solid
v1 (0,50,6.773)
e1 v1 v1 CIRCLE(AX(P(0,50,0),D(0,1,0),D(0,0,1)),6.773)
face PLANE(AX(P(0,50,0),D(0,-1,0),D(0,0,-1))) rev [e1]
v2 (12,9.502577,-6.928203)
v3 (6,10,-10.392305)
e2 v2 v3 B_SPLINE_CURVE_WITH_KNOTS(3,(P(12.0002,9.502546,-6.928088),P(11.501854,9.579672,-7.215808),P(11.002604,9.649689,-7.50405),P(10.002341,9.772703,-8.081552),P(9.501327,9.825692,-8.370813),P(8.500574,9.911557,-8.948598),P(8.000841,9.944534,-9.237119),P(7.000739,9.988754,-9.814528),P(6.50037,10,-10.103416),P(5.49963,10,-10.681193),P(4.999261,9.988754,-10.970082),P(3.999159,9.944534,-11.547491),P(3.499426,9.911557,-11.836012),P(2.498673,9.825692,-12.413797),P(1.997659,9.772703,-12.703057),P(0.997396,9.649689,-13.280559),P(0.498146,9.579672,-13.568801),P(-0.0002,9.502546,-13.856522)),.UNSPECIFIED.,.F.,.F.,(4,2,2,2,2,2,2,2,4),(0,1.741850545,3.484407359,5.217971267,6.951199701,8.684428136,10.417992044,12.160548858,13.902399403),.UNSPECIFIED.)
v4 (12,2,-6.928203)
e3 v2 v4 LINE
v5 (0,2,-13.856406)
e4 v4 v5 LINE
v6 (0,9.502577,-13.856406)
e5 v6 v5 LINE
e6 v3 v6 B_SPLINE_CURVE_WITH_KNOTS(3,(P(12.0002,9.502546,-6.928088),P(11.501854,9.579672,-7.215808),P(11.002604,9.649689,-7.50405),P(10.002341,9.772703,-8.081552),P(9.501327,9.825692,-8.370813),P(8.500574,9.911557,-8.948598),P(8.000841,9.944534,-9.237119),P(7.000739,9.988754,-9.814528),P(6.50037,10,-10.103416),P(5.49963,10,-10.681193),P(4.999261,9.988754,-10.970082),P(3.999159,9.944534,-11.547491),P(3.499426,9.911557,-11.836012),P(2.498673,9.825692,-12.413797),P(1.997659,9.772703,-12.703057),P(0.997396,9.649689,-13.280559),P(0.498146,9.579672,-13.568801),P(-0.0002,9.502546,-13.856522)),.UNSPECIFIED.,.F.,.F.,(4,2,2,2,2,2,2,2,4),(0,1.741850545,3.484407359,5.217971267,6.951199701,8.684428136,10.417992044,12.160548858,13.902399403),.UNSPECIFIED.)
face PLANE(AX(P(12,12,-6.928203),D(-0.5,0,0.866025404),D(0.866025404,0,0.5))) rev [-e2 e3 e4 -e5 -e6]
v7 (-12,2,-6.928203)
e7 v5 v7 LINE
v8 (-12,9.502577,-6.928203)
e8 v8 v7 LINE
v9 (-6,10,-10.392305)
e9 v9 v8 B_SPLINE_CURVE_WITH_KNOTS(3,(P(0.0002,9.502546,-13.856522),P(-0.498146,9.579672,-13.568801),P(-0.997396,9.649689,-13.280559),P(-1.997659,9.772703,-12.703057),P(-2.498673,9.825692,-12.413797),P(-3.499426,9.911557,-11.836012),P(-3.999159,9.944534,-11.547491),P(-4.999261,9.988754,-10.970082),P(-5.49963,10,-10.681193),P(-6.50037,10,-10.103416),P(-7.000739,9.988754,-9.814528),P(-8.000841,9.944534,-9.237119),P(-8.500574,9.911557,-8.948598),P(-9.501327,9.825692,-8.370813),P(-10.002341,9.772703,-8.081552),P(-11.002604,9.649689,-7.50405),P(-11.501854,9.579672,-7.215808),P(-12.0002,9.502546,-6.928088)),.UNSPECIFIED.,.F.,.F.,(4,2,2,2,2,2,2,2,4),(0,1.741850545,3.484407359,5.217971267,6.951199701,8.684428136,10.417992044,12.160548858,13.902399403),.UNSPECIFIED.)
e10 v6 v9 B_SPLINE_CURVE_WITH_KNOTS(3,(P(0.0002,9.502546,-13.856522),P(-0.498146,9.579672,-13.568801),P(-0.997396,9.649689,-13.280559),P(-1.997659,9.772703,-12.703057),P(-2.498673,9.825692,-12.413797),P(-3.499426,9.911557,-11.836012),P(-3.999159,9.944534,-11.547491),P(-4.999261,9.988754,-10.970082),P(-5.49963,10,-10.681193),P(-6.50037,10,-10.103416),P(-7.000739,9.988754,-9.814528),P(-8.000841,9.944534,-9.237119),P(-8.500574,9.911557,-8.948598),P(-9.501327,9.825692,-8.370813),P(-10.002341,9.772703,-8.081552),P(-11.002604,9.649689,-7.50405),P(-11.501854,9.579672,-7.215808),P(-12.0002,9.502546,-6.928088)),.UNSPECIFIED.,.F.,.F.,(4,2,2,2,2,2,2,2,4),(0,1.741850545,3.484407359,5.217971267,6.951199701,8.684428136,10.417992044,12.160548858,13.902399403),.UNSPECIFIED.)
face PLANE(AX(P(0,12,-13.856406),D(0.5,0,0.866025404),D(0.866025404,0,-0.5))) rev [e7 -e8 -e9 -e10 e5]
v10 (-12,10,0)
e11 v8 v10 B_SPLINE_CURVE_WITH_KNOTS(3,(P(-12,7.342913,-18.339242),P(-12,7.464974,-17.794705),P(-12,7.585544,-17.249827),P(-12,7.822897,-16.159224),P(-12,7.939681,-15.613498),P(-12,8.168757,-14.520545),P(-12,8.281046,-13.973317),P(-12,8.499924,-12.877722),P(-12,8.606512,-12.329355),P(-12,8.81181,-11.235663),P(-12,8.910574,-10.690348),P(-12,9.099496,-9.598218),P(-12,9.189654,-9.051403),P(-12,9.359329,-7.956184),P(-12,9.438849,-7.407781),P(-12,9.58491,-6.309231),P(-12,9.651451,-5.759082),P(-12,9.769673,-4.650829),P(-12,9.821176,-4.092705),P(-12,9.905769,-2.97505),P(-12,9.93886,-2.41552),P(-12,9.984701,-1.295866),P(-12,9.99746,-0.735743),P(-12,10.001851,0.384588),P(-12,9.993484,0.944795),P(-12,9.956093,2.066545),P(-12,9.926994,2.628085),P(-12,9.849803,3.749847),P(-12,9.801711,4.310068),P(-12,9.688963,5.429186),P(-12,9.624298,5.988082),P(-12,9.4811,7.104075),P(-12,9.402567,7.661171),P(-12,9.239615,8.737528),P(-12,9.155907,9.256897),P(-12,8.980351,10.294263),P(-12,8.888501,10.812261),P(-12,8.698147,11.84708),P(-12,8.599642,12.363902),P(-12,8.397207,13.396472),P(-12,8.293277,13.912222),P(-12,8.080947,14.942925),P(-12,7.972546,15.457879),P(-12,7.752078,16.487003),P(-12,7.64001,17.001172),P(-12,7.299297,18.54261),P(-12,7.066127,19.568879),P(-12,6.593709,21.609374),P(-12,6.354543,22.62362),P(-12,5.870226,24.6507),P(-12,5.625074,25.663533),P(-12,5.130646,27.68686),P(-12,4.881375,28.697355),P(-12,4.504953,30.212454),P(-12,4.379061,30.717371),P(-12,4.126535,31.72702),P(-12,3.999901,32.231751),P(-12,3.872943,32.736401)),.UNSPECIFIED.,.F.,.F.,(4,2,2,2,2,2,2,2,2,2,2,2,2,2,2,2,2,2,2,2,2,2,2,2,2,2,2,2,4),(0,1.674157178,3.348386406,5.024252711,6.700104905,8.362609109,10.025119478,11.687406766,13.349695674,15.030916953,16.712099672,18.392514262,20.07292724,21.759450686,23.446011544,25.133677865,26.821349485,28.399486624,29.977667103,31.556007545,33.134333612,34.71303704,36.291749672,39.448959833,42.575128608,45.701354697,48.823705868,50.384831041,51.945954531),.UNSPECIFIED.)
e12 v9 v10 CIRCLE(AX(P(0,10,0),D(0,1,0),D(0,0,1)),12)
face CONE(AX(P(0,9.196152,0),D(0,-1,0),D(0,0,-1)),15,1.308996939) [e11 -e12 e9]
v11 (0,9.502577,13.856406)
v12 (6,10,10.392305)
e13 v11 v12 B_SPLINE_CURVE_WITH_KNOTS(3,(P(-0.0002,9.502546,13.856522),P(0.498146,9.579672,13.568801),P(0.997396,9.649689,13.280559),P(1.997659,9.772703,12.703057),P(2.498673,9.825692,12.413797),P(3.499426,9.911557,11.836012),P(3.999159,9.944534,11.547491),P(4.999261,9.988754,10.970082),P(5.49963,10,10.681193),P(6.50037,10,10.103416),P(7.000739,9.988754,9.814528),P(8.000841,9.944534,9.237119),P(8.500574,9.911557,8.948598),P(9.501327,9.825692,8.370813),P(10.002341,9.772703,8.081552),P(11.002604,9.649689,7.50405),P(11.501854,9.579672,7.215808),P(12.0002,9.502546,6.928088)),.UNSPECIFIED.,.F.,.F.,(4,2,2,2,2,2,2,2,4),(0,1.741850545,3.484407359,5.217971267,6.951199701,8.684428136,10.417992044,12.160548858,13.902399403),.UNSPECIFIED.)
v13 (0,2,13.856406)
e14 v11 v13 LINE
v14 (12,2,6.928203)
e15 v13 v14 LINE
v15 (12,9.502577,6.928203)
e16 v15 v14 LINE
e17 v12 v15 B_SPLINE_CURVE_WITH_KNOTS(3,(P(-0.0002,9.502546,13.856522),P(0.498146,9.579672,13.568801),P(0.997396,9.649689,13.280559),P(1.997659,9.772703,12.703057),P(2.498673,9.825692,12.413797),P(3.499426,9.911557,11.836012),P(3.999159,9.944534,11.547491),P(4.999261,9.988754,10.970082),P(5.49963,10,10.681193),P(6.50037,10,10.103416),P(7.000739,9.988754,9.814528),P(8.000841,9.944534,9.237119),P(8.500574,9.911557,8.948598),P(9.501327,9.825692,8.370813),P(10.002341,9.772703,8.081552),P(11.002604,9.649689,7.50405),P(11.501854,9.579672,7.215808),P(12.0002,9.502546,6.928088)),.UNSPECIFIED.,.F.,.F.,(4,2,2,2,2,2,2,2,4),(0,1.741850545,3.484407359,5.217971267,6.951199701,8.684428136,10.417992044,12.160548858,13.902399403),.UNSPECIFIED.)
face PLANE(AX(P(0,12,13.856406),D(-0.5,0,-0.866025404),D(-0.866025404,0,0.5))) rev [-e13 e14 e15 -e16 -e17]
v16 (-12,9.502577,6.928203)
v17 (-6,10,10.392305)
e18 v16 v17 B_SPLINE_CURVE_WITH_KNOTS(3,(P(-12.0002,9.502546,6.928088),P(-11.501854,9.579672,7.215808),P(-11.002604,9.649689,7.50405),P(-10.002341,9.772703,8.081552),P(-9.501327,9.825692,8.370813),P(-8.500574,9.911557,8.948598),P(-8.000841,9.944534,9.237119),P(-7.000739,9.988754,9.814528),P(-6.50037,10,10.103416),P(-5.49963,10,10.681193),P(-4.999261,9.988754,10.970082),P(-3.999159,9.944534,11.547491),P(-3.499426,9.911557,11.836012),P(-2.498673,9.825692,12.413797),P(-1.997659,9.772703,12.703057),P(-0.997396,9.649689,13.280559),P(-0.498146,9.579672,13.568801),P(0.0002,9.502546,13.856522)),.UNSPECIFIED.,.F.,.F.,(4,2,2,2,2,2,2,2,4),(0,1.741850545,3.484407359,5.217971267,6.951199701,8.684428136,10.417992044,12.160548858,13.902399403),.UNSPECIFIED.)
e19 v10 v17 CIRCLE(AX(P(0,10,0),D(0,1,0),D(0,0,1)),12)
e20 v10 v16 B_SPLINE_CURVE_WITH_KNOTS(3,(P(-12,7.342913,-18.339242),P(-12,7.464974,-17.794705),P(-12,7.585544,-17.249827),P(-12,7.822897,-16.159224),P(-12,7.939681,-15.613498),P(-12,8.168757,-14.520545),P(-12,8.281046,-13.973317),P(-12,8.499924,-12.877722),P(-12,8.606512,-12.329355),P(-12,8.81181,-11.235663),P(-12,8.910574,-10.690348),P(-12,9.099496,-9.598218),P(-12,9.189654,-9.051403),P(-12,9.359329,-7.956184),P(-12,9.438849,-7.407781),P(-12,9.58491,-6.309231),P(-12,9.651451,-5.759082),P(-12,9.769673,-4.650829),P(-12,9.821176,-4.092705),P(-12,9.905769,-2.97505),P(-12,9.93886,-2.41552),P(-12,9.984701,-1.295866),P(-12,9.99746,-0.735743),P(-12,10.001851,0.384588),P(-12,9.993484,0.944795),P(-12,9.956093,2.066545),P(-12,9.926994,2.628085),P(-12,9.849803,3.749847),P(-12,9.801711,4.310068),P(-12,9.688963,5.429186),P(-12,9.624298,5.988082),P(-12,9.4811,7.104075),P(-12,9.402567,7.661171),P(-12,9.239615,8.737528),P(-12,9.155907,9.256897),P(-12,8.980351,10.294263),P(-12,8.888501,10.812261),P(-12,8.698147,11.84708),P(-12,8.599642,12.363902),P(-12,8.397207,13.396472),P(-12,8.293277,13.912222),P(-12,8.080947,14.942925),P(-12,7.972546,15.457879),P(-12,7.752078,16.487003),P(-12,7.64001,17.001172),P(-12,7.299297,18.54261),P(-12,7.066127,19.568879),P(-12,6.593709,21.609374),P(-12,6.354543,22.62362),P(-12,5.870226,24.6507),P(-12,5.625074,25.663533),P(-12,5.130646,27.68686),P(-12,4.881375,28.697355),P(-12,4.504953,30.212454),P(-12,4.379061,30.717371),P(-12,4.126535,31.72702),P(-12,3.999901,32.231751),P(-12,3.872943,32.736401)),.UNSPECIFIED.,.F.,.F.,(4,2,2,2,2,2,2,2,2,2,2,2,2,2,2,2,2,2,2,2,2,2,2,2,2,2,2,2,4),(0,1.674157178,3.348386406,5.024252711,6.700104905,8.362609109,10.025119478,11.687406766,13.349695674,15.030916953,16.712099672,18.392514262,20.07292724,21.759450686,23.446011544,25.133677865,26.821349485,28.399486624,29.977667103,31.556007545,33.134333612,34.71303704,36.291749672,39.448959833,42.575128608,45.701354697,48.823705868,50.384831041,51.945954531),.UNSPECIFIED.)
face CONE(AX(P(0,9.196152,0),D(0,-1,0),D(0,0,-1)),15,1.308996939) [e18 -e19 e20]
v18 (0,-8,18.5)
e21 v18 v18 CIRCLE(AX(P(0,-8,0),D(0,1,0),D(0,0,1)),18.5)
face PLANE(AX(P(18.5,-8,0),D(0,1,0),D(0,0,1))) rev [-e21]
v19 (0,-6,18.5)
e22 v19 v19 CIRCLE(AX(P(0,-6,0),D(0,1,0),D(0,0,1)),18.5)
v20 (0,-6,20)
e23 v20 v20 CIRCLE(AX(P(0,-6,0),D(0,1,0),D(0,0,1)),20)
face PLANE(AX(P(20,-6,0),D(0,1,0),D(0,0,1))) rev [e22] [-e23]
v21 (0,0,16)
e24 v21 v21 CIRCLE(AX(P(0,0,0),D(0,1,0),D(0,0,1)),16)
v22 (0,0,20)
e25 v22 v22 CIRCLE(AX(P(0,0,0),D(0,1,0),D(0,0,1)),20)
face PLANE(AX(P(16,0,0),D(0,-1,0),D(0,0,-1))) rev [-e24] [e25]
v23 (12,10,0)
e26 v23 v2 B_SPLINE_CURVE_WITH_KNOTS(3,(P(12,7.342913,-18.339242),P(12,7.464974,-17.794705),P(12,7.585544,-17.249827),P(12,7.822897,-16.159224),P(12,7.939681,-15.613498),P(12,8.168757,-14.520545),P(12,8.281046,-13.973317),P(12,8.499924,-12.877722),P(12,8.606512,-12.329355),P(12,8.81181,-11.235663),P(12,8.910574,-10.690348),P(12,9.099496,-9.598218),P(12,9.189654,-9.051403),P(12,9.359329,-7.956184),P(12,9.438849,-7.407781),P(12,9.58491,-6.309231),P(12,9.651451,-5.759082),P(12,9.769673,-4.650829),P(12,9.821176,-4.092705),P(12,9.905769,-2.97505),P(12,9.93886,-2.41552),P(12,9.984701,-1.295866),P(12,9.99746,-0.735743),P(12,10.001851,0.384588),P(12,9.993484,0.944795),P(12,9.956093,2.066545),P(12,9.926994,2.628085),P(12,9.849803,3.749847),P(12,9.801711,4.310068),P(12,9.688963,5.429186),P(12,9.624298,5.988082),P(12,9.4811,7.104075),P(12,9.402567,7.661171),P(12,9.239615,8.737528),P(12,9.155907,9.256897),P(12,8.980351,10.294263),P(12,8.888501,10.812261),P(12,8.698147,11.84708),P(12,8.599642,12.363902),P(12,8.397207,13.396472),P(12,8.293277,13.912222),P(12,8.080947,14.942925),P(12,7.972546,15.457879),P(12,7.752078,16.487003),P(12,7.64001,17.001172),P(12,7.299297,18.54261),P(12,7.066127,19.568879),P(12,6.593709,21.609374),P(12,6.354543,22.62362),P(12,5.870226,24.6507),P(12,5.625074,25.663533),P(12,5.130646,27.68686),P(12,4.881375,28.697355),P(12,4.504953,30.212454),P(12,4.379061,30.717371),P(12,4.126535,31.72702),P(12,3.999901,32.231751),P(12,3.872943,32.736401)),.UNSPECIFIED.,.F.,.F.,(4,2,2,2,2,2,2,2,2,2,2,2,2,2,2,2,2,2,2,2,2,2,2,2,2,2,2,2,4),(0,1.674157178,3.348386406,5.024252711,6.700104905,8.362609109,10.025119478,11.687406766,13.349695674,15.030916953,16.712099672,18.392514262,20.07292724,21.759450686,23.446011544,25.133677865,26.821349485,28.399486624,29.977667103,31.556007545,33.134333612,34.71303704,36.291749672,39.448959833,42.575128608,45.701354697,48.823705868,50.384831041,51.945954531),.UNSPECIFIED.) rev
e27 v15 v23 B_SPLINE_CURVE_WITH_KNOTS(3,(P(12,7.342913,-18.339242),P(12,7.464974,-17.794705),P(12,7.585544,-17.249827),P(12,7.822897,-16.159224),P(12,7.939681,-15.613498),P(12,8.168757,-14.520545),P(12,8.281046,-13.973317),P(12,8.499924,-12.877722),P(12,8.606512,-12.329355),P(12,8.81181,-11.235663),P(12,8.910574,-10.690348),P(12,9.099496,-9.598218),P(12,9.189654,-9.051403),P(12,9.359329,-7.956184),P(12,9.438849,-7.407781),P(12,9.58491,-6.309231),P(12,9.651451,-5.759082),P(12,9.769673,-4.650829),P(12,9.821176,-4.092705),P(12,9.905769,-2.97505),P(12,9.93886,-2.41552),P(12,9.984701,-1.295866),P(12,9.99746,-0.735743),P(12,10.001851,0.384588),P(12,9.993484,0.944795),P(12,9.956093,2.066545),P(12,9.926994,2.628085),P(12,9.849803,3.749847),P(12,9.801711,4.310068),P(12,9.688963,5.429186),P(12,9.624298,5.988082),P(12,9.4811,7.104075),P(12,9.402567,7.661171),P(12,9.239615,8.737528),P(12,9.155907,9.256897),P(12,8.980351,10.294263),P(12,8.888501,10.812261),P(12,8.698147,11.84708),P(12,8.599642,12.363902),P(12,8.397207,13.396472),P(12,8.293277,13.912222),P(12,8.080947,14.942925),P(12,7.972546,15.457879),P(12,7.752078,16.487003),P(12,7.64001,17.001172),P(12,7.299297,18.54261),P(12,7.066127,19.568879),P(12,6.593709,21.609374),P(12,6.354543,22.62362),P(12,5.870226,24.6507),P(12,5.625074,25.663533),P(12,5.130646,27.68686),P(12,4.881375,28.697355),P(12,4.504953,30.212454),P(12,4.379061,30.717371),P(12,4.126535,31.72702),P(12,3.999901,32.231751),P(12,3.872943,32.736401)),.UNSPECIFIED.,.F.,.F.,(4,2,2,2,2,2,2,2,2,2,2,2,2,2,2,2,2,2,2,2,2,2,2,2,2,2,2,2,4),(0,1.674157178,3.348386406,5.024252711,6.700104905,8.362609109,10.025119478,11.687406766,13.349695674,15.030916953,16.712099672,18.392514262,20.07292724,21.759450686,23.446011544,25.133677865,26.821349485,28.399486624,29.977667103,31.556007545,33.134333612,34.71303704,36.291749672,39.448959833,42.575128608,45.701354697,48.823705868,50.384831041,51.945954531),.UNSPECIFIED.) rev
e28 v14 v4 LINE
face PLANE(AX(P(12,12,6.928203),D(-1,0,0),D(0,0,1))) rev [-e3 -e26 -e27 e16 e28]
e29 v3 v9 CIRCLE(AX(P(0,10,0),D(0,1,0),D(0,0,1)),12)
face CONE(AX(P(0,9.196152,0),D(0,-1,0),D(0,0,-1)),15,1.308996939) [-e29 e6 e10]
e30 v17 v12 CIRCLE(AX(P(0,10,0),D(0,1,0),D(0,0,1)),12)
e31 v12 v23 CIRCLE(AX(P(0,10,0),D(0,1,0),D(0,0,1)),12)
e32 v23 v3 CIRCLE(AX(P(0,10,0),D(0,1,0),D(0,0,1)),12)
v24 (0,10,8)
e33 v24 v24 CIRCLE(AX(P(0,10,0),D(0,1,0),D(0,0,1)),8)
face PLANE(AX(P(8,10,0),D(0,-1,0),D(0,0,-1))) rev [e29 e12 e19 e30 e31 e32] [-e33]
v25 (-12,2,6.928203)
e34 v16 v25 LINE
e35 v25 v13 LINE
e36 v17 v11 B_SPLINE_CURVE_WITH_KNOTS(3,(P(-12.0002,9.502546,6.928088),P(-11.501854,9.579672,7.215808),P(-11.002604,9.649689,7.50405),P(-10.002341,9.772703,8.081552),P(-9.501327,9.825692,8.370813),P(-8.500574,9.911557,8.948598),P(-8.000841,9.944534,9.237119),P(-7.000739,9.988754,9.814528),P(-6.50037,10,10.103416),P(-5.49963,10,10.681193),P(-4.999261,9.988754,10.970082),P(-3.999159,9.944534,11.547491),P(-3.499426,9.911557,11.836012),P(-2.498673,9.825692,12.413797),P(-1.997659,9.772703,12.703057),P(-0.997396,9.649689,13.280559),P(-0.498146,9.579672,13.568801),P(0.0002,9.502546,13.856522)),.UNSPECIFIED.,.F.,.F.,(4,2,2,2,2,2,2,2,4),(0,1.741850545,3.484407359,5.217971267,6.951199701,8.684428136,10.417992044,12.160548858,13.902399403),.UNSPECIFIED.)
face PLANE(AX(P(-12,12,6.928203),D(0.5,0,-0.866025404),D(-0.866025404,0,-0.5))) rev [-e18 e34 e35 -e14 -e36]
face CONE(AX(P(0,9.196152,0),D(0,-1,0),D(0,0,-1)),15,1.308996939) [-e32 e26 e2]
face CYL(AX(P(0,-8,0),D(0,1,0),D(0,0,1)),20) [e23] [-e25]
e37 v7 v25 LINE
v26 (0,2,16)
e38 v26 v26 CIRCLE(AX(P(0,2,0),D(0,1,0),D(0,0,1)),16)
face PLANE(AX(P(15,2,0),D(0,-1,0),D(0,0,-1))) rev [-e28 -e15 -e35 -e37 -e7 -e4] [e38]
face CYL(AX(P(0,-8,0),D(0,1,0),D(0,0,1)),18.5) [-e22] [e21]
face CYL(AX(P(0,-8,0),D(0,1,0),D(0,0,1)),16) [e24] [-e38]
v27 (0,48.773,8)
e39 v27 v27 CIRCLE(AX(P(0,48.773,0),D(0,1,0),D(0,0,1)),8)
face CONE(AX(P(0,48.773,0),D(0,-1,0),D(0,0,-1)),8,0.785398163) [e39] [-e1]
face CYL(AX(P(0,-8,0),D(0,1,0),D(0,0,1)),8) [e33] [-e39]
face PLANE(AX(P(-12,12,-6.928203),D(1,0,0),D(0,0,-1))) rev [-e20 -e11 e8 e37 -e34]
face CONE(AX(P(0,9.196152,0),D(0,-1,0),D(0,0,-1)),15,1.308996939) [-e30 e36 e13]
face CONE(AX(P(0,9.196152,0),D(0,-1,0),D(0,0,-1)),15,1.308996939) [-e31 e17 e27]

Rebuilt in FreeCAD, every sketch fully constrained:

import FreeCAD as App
import Part
import Sketcher

V = App.Vector
Q = App.Units.Quantity


def add_polygon(sketch, points):
    """Adds a closed chain of lines whose ends are joined by coincident constraints."""
    first, n = sketch.GeometryCount, len(points)
    for a, b in zip(points, points[1:] + points[:1]):
        sketch.addGeometry(Part.LineSegment(App.Vector(*a, 0), App.Vector(*b, 0)), False)
    for i in range(n):
        sketch.addConstraint(Sketcher.Constraint("Coincident", first + i, 2, first + (i + 1) % n, 1))

doc = App.newDocument("Part")
params = doc.addObject("Spreadsheet::Sheet", "Params")
for row, (alias, value) in enumerate([
    ("sketch1_width", "4 mm"),
    ("sketch1_width2", "1 mm"),
    ("sketch1_height", "58 mm"),
    ("sketch1_height2", "2 mm"),
    ("sketch1_height3", "6 mm"),
    ("revolution_angle", "360 deg"),
    ("sketch2_diameter", "34 mm"),
    ("pocket1_length", "10 mm"),
], start=1):
    params.set(f"A{row}", alias)
    params.set(f"B{row}", "=" + value)
    params.setAlias(f"B{row}", alias)

body = doc.addObject("PartDesign::Body", "Body")

sketch1 = body.newObject("Sketcher::SketchObject", "Sketch")
sketch1.AttachmentSupport = (doc.getObject("XY_Plane"), [""])
sketch1.MapMode = "FlatFace"
add_polygon(sketch1, [(6.8, 50), (0, 50), (0, -8), (18.5, -8), (18.5, -6), (20, -6), (20, 0), (16, 0), (16, 2), (15, 2), (15, 9.2), (12, 10), (8, 10), (8, 48.8)])
sketch1.addConstraint(Sketcher.Constraint("Horizontal", 0))
sketch1.addConstraint(Sketcher.Constraint("Vertical", 1))
sketch1.addConstraint(Sketcher.Constraint("Horizontal", 2))
sketch1.addConstraint(Sketcher.Constraint("Vertical", 3))
sketch1.addConstraint(Sketcher.Constraint("Horizontal", 4))
sketch1.addConstraint(Sketcher.Constraint("Vertical", 5))
sketch1.addConstraint(Sketcher.Constraint("Horizontal", 6))
sketch1.addConstraint(Sketcher.Constraint("Vertical", 7))
sketch1.addConstraint(Sketcher.Constraint("Horizontal", 8))
sketch1.addConstraint(Sketcher.Constraint("Vertical", 9))
sketch1.addConstraint(Sketcher.Constraint("Horizontal", 11))
sketch1.addConstraint(Sketcher.Constraint("Vertical", 12))
sketch1.addConstraint(Sketcher.Constraint("PointOnObject", 0, 2, -2))
sketch1.addConstraint(Sketcher.Constraint("PointOnObject", 5, 2, -1))
sketch1.addConstraint(Sketcher.Constraint("Equal", 6, 11))
sketch1.addConstraint(Sketcher.Constraint("Equal", 3, 7))
sketch1.addConstraint(Sketcher.Constraint("DistanceX", 6, 2, 6, 1, Q("4 mm")))
sketch1.addConstraint(Sketcher.Constraint("DistanceX", 8, 2, 8, 1, Q("1 mm")))
sketch1.addConstraint(Sketcher.Constraint("DistanceY", 1, 2, 1, 1, Q("58 mm")))
sketch1.addConstraint(Sketcher.Constraint("DistanceY", 3, 1, 3, 2, Q("2 mm")))
sketch1.addConstraint(Sketcher.Constraint("DistanceY", 5, 1, 5, 2, Q("6 mm")))
sketch1.addConstraint(Sketcher.Constraint("Angle", 10, Q("165 deg")))
sketch1.addConstraint(Sketcher.Constraint("Angle", 13, Q("135 deg")))
sketch1.addConstraint(Sketcher.Constraint("DistanceX", 2, 1, 2, 2, Q("18.5 mm")))
sketch1.addConstraint(Sketcher.Constraint("DistanceX", 4, 1, 4, 2, Q("1.5 mm")))
sketch1.addConstraint(Sketcher.Constraint("DistanceX", -1, 1, 10, 2, Q("12 mm")))
sketch1.addConstraint(Sketcher.Constraint("DistanceY", -1, 1, 10, 2, Q("10 mm")))
sketch1.addConstraint(Sketcher.Constraint("DistanceX", 0, 2, 0, 1, Q("6.773 mm")))
sketch1.setExpression("Constraints[30]", "Params.sketch1_width")
sketch1.setExpression("Constraints[31]", "Params.sketch1_width2")
sketch1.setExpression("Constraints[32]", "Params.sketch1_height")
sketch1.setExpression("Constraints[33]", "Params.sketch1_height2")
sketch1.setExpression("Constraints[34]", "Params.sketch1_height3")
revolution = body.newObject("PartDesign::Revolution", "Revolution")
revolution.Profile = sketch1
revolution.ReferenceAxis = (sketch1, ["V_Axis"])
revolution.setExpression("Angle", "Params.revolution_angle")

sketch2 = body.newObject("Sketcher::SketchObject", "Sketch001")
sketch2.AttachmentSupport = (doc.getObject("XZ_Plane"), [""])
sketch2.MapMode = "FlatFace"
sketch2.AttachmentOffset = App.Placement(V(0, 0, -2), App.Rotation())
sketch2.addGeometry(Part.Circle(V(0, 0, 0), V(0, 0, 1), 17), False)
add_polygon(sketch2, [(0, 14), (-12, 7), (-12, -7), (0, -14), (12, -7), (12, 7)])
sketch2.addConstraint(Sketcher.Constraint("Vertical", 2))
sketch2.addConstraint(Sketcher.Constraint("Vertical", 5))
sketch2.addConstraint(Sketcher.Constraint("Coincident", 0, 3, -1, 1))
sketch2.addConstraint(Sketcher.Constraint("Symmetric", 1, 2, 4, 2, -1, 1))
sketch2.addConstraint(Sketcher.Constraint("Symmetric", 3, 2, 6, 2, -1, 1))
sketch2.addConstraint(Sketcher.Constraint("PointOnObject", 3, 2, -2))
sketch2.addConstraint(Sketcher.Constraint("Parallel", 3, 6))
sketch2.addConstraint(Sketcher.Constraint("Horizontal", 2, 2, 4, 2))
sketch2.addConstraint(Sketcher.Constraint("Diameter", 0, Q("34 mm")))
sketch2.addConstraint(Sketcher.Constraint("Angle", 1, Q("-150 deg")))
sketch2.addConstraint(Sketcher.Constraint("DistanceX", 1, 2, -1, 1, Q("12 mm")))
sketch2.addConstraint(Sketcher.Constraint("DistanceY", 2, 2, 2, 1, Q("13.856406 mm")))
sketch2.setExpression("Constraints[14]", "Params.sketch2_diameter")
pocket1 = body.newObject("PartDesign::Pocket", "Pocket")
pocket1.Profile = sketch2
pocket1.setExpression("Length", "Params.pocket1_length")

doc.recompute()
